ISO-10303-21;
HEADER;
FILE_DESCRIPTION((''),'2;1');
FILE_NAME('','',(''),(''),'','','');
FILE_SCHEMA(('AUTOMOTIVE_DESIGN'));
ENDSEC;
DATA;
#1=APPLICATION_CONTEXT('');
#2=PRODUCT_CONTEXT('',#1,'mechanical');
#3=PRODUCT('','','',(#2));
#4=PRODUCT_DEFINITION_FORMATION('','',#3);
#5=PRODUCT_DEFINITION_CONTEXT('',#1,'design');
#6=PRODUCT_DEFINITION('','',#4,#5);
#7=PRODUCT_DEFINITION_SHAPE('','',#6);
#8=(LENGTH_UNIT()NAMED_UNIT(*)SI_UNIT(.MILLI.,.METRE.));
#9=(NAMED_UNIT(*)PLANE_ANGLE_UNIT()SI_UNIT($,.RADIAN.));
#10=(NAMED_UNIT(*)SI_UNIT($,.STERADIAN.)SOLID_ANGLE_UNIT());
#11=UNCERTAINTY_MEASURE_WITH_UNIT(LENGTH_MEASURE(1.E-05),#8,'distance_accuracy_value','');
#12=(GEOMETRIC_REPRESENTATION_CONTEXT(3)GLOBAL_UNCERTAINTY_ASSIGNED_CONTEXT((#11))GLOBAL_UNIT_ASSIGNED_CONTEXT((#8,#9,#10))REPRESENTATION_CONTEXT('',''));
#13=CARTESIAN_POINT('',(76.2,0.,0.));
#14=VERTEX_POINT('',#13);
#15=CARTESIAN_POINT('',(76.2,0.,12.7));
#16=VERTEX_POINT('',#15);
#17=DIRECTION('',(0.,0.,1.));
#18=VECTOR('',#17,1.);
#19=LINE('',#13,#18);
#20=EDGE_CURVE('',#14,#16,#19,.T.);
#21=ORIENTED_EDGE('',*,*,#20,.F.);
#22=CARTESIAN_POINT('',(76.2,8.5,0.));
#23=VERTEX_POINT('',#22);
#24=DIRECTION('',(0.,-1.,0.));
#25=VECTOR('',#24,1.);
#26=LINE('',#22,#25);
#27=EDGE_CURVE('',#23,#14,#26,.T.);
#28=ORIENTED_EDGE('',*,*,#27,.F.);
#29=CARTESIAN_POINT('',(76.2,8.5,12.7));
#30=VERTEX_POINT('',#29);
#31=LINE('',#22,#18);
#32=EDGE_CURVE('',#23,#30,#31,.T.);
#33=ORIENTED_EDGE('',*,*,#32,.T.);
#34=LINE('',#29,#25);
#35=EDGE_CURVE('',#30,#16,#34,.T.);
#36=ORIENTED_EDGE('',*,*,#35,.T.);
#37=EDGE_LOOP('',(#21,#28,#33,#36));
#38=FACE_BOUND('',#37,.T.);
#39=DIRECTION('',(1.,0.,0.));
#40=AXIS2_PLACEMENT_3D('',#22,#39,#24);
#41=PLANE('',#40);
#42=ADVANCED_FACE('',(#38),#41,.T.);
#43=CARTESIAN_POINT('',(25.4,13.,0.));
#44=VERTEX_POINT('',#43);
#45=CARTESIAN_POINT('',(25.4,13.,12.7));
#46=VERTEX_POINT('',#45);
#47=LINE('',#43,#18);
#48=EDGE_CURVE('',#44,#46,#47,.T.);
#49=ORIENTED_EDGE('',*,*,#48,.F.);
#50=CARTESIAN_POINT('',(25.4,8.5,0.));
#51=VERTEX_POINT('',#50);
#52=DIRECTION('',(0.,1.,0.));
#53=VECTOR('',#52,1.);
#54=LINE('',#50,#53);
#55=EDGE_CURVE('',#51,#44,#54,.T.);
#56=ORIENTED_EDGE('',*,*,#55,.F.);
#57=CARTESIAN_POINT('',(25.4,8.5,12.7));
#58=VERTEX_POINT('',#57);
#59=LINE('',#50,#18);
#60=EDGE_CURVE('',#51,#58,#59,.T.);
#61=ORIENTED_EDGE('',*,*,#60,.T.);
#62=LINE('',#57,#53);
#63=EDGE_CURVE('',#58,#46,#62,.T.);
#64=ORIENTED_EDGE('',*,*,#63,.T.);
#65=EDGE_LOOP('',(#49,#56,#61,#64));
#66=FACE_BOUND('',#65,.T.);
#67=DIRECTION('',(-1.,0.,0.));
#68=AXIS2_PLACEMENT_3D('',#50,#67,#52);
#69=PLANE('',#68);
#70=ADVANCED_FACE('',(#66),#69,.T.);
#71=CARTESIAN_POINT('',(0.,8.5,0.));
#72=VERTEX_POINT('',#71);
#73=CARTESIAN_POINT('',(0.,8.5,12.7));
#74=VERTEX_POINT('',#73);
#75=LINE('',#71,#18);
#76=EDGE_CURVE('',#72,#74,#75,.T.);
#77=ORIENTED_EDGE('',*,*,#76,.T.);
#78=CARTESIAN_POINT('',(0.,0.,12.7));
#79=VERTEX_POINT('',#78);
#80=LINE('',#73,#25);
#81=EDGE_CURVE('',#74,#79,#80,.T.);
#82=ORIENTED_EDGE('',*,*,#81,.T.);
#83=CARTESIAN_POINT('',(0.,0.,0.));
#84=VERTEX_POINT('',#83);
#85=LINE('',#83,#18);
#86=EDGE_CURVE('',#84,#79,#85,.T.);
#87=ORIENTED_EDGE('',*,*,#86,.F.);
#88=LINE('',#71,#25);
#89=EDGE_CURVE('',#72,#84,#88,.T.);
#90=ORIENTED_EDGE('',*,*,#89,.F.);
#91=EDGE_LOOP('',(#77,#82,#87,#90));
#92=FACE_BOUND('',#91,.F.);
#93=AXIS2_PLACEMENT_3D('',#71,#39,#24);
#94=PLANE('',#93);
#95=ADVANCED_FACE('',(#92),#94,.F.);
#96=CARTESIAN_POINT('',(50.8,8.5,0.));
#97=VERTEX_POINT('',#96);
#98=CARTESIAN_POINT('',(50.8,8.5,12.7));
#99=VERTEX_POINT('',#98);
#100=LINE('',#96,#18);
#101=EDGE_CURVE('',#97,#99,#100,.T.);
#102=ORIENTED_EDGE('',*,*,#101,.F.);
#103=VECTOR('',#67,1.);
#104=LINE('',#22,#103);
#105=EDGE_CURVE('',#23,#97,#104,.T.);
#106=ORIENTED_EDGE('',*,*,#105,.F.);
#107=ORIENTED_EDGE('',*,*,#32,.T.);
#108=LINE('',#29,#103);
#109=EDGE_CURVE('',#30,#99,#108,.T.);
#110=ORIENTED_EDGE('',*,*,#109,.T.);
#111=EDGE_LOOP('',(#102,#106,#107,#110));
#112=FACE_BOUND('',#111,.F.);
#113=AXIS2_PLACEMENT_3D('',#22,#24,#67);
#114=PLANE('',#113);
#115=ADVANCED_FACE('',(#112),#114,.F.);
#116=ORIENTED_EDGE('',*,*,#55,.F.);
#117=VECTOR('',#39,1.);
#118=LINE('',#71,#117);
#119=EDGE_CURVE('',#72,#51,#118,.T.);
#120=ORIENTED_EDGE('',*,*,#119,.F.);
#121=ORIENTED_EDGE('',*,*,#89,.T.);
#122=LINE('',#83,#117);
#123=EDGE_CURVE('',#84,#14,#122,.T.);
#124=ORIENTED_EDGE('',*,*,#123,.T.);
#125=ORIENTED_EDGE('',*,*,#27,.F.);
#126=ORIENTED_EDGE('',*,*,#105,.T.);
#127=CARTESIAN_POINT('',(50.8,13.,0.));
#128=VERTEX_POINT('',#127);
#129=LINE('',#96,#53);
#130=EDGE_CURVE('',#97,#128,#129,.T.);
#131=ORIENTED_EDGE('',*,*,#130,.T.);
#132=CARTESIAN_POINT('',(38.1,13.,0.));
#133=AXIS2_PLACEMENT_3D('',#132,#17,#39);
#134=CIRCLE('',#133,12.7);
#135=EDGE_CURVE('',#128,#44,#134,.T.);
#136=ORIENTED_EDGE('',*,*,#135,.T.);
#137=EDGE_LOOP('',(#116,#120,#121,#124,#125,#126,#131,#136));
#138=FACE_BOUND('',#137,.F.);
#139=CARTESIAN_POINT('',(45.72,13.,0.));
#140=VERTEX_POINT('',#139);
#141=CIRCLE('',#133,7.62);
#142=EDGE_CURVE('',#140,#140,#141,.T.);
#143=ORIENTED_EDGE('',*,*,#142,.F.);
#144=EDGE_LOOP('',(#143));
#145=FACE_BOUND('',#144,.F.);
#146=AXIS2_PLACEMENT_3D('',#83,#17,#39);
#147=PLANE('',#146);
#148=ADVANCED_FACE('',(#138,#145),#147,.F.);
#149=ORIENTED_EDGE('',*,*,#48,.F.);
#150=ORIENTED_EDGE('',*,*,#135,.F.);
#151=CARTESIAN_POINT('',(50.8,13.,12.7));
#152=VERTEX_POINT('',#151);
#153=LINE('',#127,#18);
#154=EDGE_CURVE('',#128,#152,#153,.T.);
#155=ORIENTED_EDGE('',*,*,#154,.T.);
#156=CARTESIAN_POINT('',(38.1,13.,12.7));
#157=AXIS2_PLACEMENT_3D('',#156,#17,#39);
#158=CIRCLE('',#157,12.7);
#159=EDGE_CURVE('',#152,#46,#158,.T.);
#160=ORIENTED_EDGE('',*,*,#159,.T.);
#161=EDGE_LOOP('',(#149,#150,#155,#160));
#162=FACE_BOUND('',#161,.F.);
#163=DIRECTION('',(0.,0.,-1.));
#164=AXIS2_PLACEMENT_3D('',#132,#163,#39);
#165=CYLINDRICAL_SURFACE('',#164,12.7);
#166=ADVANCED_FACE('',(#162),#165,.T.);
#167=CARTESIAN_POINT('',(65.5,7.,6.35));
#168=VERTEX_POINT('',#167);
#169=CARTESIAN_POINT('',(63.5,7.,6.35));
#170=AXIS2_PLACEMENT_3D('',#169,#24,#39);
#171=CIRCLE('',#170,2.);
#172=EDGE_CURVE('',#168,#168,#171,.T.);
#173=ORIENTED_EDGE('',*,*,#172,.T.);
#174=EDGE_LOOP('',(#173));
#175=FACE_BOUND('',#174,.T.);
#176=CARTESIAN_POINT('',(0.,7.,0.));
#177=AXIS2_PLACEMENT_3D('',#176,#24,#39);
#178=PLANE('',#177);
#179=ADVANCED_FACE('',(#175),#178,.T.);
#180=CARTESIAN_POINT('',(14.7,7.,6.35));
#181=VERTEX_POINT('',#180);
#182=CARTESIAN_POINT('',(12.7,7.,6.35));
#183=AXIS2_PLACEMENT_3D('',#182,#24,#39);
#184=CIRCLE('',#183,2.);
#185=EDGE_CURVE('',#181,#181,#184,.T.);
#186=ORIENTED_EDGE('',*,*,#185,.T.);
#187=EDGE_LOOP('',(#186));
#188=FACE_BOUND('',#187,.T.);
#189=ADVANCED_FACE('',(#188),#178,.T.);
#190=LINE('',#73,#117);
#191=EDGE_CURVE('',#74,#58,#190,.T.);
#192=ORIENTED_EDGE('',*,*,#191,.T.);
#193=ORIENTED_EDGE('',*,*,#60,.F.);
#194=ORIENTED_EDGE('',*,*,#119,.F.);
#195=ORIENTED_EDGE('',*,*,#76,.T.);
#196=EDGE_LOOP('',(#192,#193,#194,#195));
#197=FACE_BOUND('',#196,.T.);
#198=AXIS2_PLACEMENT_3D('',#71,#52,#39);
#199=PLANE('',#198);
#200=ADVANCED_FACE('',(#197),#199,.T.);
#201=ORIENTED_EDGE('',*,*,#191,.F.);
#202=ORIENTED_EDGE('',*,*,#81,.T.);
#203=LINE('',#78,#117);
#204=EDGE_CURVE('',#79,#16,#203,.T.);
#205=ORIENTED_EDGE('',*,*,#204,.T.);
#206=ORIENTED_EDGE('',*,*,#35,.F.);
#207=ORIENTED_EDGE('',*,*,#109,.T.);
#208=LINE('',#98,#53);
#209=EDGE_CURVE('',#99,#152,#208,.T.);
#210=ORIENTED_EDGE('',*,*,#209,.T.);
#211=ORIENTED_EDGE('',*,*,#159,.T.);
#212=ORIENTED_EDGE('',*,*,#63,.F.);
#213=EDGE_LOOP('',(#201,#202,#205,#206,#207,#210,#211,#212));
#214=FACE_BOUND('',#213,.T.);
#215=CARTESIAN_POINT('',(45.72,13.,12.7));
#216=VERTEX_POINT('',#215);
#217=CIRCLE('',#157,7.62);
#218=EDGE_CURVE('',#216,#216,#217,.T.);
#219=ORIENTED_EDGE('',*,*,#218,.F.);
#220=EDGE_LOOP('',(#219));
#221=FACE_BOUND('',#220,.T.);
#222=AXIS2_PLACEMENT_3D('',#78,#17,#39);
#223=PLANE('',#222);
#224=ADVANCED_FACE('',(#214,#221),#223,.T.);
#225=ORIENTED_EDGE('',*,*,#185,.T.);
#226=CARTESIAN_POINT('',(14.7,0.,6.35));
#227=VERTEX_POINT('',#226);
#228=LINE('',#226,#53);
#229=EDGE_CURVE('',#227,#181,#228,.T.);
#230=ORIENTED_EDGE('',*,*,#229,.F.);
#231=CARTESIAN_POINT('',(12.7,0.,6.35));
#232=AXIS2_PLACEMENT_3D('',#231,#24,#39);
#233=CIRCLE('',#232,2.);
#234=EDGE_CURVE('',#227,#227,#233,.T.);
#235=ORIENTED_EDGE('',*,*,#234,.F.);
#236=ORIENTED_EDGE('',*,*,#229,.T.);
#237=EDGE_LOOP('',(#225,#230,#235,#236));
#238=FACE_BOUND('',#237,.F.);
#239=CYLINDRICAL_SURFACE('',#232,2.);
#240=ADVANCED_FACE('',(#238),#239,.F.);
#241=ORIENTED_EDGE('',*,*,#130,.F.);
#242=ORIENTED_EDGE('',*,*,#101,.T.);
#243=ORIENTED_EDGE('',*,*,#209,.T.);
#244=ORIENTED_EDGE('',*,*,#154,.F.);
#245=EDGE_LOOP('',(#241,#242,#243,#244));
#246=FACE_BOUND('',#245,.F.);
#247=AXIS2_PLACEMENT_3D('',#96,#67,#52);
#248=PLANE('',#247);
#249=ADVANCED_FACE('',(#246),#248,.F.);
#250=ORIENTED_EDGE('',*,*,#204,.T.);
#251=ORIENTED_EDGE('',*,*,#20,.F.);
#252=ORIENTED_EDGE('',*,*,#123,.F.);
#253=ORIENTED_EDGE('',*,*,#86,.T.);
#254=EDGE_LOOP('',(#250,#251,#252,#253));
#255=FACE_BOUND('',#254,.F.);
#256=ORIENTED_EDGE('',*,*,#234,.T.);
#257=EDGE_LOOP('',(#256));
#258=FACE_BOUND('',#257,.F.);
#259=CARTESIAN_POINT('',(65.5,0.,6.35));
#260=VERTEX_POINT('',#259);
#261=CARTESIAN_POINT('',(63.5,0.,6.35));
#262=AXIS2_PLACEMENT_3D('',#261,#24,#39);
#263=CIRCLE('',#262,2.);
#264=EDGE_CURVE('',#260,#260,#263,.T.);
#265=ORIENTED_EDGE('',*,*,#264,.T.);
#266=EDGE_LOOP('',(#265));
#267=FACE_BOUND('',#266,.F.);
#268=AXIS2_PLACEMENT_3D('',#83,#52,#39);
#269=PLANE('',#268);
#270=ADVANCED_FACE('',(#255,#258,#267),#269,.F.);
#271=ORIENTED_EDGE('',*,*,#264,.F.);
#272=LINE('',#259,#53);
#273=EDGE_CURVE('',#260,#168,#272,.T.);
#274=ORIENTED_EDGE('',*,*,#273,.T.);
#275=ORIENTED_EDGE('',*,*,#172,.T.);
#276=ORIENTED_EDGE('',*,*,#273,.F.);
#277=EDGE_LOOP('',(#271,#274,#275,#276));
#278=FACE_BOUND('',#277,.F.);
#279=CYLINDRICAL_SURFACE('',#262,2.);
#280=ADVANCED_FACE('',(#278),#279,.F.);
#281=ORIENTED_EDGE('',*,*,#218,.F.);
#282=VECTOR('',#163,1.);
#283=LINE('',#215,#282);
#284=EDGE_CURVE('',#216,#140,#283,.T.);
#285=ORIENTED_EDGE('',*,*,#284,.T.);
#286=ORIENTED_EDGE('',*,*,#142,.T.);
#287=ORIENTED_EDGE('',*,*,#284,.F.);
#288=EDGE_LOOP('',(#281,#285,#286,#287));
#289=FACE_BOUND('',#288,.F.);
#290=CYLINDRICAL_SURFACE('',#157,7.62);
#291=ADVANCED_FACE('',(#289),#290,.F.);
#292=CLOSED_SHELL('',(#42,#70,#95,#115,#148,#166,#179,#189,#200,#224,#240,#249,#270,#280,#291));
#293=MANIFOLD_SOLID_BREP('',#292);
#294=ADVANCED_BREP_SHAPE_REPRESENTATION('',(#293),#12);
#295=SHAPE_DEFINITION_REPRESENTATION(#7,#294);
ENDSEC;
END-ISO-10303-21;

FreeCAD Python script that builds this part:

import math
import FreeCAD as App
import Part
import Sketcher
from FreeCAD import Vector
Q = App.Units.Quantity

doc = App.newDocument("Part")
body = doc.addObject("PartDesign::Body", "Body")

sketch1 = doc.addObject("Sketcher::SketchObject", "Sketch")
body.addObject(sketch1)
sketch1.AttachmentSupport = (doc.XY_Plane, [""])
sketch1.MapMode = "FlatFace"
sketch1.addGeometry([
    Part.LineSegment(Vector(0, 8.5, 0), Vector(0, 0, 0)),
    Part.LineSegment(Vector(0, 0, 0), Vector(76.2, 0, 0)),
    Part.LineSegment(Vector(76.2, 0, 0), Vector(76.2, 8.5, 0)),
    Part.LineSegment(Vector(76.2, 8.5, 0), Vector(50.8, 8.5, 0)),
    Part.LineSegment(Vector(50.8, 8.5, 0), Vector(50.8, 13, 0)),
    Part.ArcOfCircle(Part.Circle(Vector(38.1, 13, 0), Vector(0, 0, 1), 12.7), math.radians(0), math.radians(180)),
    Part.LineSegment(Vector(25.4, 13, 0), Vector(25.4, 8.5, 0)),
    Part.LineSegment(Vector(25.4, 8.5, 0), Vector(0, 8.5, 0)),
], False)
sketch1.addConstraint([
    Sketcher.Constraint("Coincident", 0, 2, 1, 1),
    Sketcher.Constraint("Coincident", 1, 2, 2, 1),
    Sketcher.Constraint("Coincident", 2, 2, 3, 1),
    Sketcher.Constraint("Coincident", 3, 2, 4, 1),
    Sketcher.Constraint("Tangent", 4, 2, 5, 1),
    Sketcher.Constraint("Tangent", 5, 2, 6, 1),
    Sketcher.Constraint("Coincident", 6, 2, 7, 1),
    Sketcher.Constraint("Coincident", 7, 2, 0, 1),
    Sketcher.Constraint("Vertical", 0),
    Sketcher.Constraint("Horizontal", 1),
    Sketcher.Constraint("Vertical", 2),
    Sketcher.Constraint("Horizontal", 3),
    Sketcher.Constraint("Vertical", 4),
    Sketcher.Constraint("Vertical", 6),
    Sketcher.Constraint("Horizontal", 7),
    Sketcher.Constraint("Coincident", 0, 2, -1, 1),
    Sketcher.Constraint("Horizontal", 3, 2, 6, 2),
    Sketcher.Constraint("Equal", 3, 7),
    Sketcher.Constraint("Radius", 5, Q("12.7 mm")),
    Sketcher.Constraint("DistanceX", 1, 1, 1, 2, Q("76.2 mm")),
    Sketcher.Constraint("DistanceY", 0, 2, 0, 1, Q("8.5 mm")),
    Sketcher.Constraint("DistanceY", -1, 1, 5, 3, Q("13 mm")),
])
pad1 = doc.addObject("PartDesign::Pad", "Pad")
body.addObject(pad1)
pad1.Profile = sketch1
pad1.Length = 12.7

sketch2 = doc.addObject("Sketcher::SketchObject", "Sketch001")
body.addObject(sketch2)
sketch2.AttachmentSupport = (doc.XY_Plane, [""])
sketch2.MapMode = "FlatFace"
sketch2.AttachmentOffset = App.Placement(Vector(0, 0, 12.7), App.Rotation())
sketch2.addGeometry(Part.Circle(Vector(38, 13, 0), Vector(0, 0, 1), 8), False)
sketch2.addConstraint([
    Sketcher.Constraint("Diameter", 0, Q("15.24 mm")),
    Sketcher.Constraint("DistanceY", -1, 1, 0, 3, Q("13 mm")),
    Sketcher.Constraint("DistanceX", -1, 1, 0, 3, Q("38.1 mm")),
])
pocket1 = doc.addObject("PartDesign::Pocket", "Pocket")
body.addObject(pocket1)
pocket1.Profile = sketch2
pocket1.Type = "ThroughAll"

sketch3 = doc.addObject("Sketcher::SketchObject", "Sketch002")
body.addObject(sketch3)
sketch3.AttachmentSupport = (doc.XZ_Plane, [""])
sketch3.MapMode = "FlatFace"
sketch3.addGeometry([
    Part.Circle(Vector(12.7, 6.3, 0), Vector(0, 0, 1), 2),
    Part.Circle(Vector(63.5, 6.3, 0), Vector(0, 0, 1), 2),
], False)
sketch3.addConstraint([
    Sketcher.Constraint("Equal", 0, 1),
    Sketcher.Constraint("Horizontal", 0, 3, 1, 3),
    Sketcher.Constraint("Diameter", 0, Q("4 mm")),
    Sketcher.Constraint("DistanceX", -1, 1, 0, 3, Q("12.7 mm")),
    Sketcher.Constraint("DistanceX", 0, 3, 1, 3, Q("50.8 mm")),
    Sketcher.Constraint("DistanceY", -1, 1, 0, 3, Q("6.35 mm")),
])
pocket2 = doc.addObject("PartDesign::Pocket", "Pocket001")
body.addObject(pocket2)
pocket2.Profile = sketch3
pocket2.Length = 7

doc.recompute()
